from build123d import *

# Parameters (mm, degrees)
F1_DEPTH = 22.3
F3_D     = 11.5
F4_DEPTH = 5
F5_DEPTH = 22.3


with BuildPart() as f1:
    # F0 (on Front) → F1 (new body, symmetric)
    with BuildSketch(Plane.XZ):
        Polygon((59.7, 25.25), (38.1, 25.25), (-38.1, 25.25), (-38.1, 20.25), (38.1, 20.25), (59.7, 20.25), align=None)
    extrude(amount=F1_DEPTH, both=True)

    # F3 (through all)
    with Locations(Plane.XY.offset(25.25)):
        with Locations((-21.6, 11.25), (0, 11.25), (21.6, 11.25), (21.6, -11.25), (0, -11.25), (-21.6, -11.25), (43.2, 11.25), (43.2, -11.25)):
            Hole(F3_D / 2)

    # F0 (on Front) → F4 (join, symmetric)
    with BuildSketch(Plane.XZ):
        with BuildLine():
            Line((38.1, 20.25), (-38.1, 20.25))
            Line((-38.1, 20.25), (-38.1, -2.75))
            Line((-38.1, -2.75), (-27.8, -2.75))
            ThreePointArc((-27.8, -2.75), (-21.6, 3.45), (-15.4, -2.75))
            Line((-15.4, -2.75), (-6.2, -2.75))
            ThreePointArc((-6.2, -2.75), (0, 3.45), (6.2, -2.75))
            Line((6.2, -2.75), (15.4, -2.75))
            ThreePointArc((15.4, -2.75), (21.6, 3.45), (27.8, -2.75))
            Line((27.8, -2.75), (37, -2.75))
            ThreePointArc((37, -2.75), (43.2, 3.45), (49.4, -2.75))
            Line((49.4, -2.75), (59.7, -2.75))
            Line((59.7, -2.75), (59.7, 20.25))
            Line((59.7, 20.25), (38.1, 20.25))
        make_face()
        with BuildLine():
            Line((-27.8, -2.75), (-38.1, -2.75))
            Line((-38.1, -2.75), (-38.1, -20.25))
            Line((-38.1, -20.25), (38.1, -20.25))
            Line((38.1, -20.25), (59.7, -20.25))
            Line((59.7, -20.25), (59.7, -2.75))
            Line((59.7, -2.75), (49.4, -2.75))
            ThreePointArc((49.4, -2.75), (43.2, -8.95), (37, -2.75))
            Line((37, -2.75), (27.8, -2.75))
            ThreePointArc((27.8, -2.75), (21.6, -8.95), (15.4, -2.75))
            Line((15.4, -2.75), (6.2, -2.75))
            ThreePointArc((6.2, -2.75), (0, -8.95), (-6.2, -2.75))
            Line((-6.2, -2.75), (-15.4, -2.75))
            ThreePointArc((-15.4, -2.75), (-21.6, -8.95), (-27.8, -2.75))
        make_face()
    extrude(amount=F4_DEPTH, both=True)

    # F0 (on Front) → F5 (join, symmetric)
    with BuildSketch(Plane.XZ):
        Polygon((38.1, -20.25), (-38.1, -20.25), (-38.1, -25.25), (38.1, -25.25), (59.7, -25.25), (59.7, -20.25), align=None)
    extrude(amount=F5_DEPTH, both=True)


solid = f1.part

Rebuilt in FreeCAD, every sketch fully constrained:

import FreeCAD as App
import Part
import Sketcher


def add_polygon(sketch, points):
    """Adds a closed chain of lines whose ends are joined by coincident constraints."""
    first, n = sketch.GeometryCount, len(points)
    for a, b in zip(points, points[1:] + points[:1]):
        sketch.addGeometry(Part.LineSegment(App.Vector(*a, 0), App.Vector(*b, 0)), False)
    for i in range(n):
        sketch.addConstraint(Sketcher.Constraint("Coincident", first + i, 2, first + (i + 1) % n, 1))

doc = App.newDocument("Part")
params = doc.addObject("Spreadsheet::Sheet", "Params")
for row, (alias, value) in enumerate([
    ("sketch1_height", "5 mm"),
    ("sketch1_width", "97.8 mm"),
    ("pad1_length", "44.6 mm"),
    ("sketch2_diameter", "11.5 mm"),
    ("hole_diameter", "11.5 mm"),
    ("sketch3_diameter", "12.4 mm"),
    ("sketch3_width", "97.8 mm"),
    ("sketch3_height", "40.5 mm"),
    ("pad2_length", "10 mm"),
    ("sketch4_height", "5 mm"),
    ("sketch4_width", "97.8 mm"),
    ("pad3_length", "44.6 mm"),
], start=1):
    params.set(f"A{row}", alias)
    params.set(f"B{row}", "=" + value)
    params.setAlias(f"B{row}", alias)

body = doc.addObject("PartDesign::Body", "Body")

sketch1 = body.newObject("Sketcher::SketchObject", "Sketch")
sketch1.AttachmentSupport = (doc.getObject("XZ_Plane"), [""])
sketch1.MapMode = "FlatFace"
add_polygon(sketch1, [(60, 25), (-38, 25), (-38, 20), (60, 20)])
sketch1.addConstraint([
    Sketcher.Constraint("Horizontal", 0),
    Sketcher.Constraint("Vertical", 1),
    Sketcher.Constraint("Horizontal", 2),
    Sketcher.Constraint("Vertical", 3),
    Sketcher.Constraint("DistanceY", 1, 2, 1, 1, 5.0),
    Sketcher.Constraint("DistanceX", 0, 2, 0, 1, 97.8),
    Sketcher.Constraint("DistanceX", 0, 2, -1, 1, 38.1),
    Sketcher.Constraint("DistanceY", -1, 1, 0, 2, 25.25),
])
sketch1.setExpression("Constraints[8]", "Params.sketch1_height")
sketch1.setExpression("Constraints[9]", "Params.sketch1_width")
pad1 = body.newObject("PartDesign::Pad", "Pad")
pad1.Profile = sketch1
pad1.setExpression("Length", "Params.pad1_length")
pad1.Midplane = True

sketch2 = body.newObject("Sketcher::SketchObject", "Sketch001")
sketch2.AttachmentSupport = (doc.getObject("XY_Plane"), [""])
sketch2.MapMode = "FlatFace"
sketch2.AttachmentOffset = App.Placement(App.Vector(0, 0, 25.25), App.Rotation())
sketch2.addGeometry([
    Part.Circle(App.Vector(-22, 11, 0), App.Vector(0, 0, 1), 6),
    Part.Circle(App.Vector(0, 11, 0), App.Vector(0, 0, 1), 6),
    Part.Circle(App.Vector(22, 11, 0), App.Vector(0, 0, 1), 6),
    Part.Circle(App.Vector(22, -11, 0), App.Vector(0, 0, 1), 6),
    Part.Circle(App.Vector(0, -11, 0), App.Vector(0, 0, 1), 6),
    Part.Circle(App.Vector(-22, -11, 0), App.Vector(0, 0, 1), 6),
    Part.Circle(App.Vector(43, 11, 0), App.Vector(0, 0, 1), 6),
    Part.Circle(App.Vector(43, -11, 0), App.Vector(0, 0, 1), 6),
], False)
sketch2.addConstraint([
    Sketcher.Constraint("Equal", 0, 1),
    Sketcher.Constraint("Equal", 1, 2),
    Sketcher.Constraint("Equal", 2, 3),
    Sketcher.Constraint("Equal", 3, 4),
    Sketcher.Constraint("Equal", 4, 5),
    Sketcher.Constraint("Equal", 5, 6),
    Sketcher.Constraint("Equal", 6, 7),
    Sketcher.Constraint("Symmetric", 0, 3, 3, 3, -1, 1),
    Sketcher.Constraint("Symmetric", 1, 3, 4, 3, -1, 1),
    Sketcher.Constraint("Symmetric", 2, 3, 5, 3, -1, 1),
    Sketcher.Constraint("Symmetric", 0, 3, 2, 3, -2),
    Sketcher.Constraint("Symmetric", 6, 3, 7, 3, -1),
    Sketcher.Constraint("PointOnObject", 1, 3, -2),
    Sketcher.Constraint("Horizontal", 0, 3, 1, 3),
    Sketcher.Constraint("Horizontal", 2, 3, 6, 3),
    Sketcher.Constraint("Diameter", 0, 11.5),
    Sketcher.Constraint("DistanceX", 0, 3, -1, 1, 21.6),
    Sketcher.Constraint("DistanceX", -1, 1, 6, 3, 43.2),
    Sketcher.Constraint("DistanceY", 3, 3, 2, 3, 22.5),
])
sketch2.setExpression("Constraints[15]", "Params.sketch2_diameter")
doc.recompute()
hole = body.newObject("PartDesign::Hole", "Hole")
hole.Profile = sketch2
hole.ThreadType = "None"
hole.setExpression("Diameter", "Params.hole_diameter")
hole.DepthType = "ThroughAll"

sketch3 = body.newObject("Sketcher::SketchObject", "Sketch002")
sketch3.AttachmentSupport = (doc.getObject("XZ_Plane"), [""])
sketch3.MapMode = "FlatFace"
add_polygon(sketch3, [(-38, 20), (-38, -20), (60, -20), (60, 20)])
sketch3.addGeometry(Part.Circle(App.Vector(-22, -3, 0), App.Vector(0, 0, 1), 6), False)
sketch3.addGeometry(Part.Circle(App.Vector(0, -3, 0), App.Vector(0, 0, 1), 6), False)
sketch3.addGeometry(Part.Circle(App.Vector(22, -3, 0), App.Vector(0, 0, 1), 6), False)
sketch3.addGeometry(Part.Circle(App.Vector(43, -3, 0), App.Vector(0, 0, 1), 6), False)
sketch3.addConstraint([
    Sketcher.Constraint("Vertical", 0),
    Sketcher.Constraint("Horizontal", 1),
    Sketcher.Constraint("Vertical", 2),
    Sketcher.Constraint("Horizontal", 3),
    Sketcher.Constraint("Equal", 4, 5),
    Sketcher.Constraint("Equal", 5, 6),
    Sketcher.Constraint("Equal", 6, 7),
    Sketcher.Constraint("Symmetric", 4, 3, 6, 3, -2),
    Sketcher.Constraint("PointOnObject", 5, 3, -2),
    Sketcher.Constraint("Horizontal", 4, 3, 5, 3),
    Sketcher.Constraint("Horizontal", 6, 3, 7, 3),
    Sketcher.Constraint("Diameter", 4, 12.4),
    Sketcher.Constraint("DistanceX", 1, 1, 1, 2, 97.8),
    Sketcher.Constraint("DistanceY", 0, 2, 0, 1, 40.5),
    Sketcher.Constraint("DistanceY", 7, 3, 2, 2, 23.0),
    Sketcher.Constraint("DistanceX", 4, 3, -1, 1, 21.6),
    Sketcher.Constraint("DistanceX", -1, 1, 7, 3, 43.2),
    Sketcher.Constraint("DistanceX", 0, 2, -1, 1, 38.1),
    Sketcher.Constraint("DistanceY", 4, 3, -1, 1, 2.75),
])
sketch3.setExpression("Constraints[15]", "Params.sketch3_diameter")
sketch3.setExpression("Constraints[16]", "Params.sketch3_width")
sketch3.setExpression("Constraints[17]", "Params.sketch3_height")
pad2 = body.newObject("PartDesign::Pad", "Pad001")
pad2.Profile = sketch3
pad2.setExpression("Length", "Params.pad2_length")
pad2.Midplane = True

sketch4 = body.newObject("Sketcher::SketchObject", "Sketch003")
sketch4.AttachmentSupport = (doc.getObject("XZ_Plane"), [""])
sketch4.MapMode = "FlatFace"
add_polygon(sketch4, [(-38, -20), (-38, -25), (60, -25), (60, -20)])
sketch4.addConstraint([
    Sketcher.Constraint("Vertical", 0),
    Sketcher.Constraint("Horizontal", 1),
    Sketcher.Constraint("Vertical", 2),
    Sketcher.Constraint("Horizontal", 3),
    Sketcher.Constraint("DistanceY", 0, 2, 0, 1, 5.0),
    Sketcher.Constraint("DistanceX", 1, 1, 1, 2, 97.8),
    Sketcher.Constraint("DistanceX", 0, 2, -1, 1, 38.1),
    Sketcher.Constraint("DistanceY", 0, 2, -1, 1, 25.25),
])
sketch4.setExpression("Constraints[8]", "Params.sketch4_height")
sketch4.setExpression("Constraints[9]", "Params.sketch4_width")
pad3 = body.newObject("PartDesign::Pad", "Pad002")
pad3.Profile = sketch4
pad3.setExpression("Length", "Params.pad3_length")
pad3.Midplane = True

doc.recompute()
